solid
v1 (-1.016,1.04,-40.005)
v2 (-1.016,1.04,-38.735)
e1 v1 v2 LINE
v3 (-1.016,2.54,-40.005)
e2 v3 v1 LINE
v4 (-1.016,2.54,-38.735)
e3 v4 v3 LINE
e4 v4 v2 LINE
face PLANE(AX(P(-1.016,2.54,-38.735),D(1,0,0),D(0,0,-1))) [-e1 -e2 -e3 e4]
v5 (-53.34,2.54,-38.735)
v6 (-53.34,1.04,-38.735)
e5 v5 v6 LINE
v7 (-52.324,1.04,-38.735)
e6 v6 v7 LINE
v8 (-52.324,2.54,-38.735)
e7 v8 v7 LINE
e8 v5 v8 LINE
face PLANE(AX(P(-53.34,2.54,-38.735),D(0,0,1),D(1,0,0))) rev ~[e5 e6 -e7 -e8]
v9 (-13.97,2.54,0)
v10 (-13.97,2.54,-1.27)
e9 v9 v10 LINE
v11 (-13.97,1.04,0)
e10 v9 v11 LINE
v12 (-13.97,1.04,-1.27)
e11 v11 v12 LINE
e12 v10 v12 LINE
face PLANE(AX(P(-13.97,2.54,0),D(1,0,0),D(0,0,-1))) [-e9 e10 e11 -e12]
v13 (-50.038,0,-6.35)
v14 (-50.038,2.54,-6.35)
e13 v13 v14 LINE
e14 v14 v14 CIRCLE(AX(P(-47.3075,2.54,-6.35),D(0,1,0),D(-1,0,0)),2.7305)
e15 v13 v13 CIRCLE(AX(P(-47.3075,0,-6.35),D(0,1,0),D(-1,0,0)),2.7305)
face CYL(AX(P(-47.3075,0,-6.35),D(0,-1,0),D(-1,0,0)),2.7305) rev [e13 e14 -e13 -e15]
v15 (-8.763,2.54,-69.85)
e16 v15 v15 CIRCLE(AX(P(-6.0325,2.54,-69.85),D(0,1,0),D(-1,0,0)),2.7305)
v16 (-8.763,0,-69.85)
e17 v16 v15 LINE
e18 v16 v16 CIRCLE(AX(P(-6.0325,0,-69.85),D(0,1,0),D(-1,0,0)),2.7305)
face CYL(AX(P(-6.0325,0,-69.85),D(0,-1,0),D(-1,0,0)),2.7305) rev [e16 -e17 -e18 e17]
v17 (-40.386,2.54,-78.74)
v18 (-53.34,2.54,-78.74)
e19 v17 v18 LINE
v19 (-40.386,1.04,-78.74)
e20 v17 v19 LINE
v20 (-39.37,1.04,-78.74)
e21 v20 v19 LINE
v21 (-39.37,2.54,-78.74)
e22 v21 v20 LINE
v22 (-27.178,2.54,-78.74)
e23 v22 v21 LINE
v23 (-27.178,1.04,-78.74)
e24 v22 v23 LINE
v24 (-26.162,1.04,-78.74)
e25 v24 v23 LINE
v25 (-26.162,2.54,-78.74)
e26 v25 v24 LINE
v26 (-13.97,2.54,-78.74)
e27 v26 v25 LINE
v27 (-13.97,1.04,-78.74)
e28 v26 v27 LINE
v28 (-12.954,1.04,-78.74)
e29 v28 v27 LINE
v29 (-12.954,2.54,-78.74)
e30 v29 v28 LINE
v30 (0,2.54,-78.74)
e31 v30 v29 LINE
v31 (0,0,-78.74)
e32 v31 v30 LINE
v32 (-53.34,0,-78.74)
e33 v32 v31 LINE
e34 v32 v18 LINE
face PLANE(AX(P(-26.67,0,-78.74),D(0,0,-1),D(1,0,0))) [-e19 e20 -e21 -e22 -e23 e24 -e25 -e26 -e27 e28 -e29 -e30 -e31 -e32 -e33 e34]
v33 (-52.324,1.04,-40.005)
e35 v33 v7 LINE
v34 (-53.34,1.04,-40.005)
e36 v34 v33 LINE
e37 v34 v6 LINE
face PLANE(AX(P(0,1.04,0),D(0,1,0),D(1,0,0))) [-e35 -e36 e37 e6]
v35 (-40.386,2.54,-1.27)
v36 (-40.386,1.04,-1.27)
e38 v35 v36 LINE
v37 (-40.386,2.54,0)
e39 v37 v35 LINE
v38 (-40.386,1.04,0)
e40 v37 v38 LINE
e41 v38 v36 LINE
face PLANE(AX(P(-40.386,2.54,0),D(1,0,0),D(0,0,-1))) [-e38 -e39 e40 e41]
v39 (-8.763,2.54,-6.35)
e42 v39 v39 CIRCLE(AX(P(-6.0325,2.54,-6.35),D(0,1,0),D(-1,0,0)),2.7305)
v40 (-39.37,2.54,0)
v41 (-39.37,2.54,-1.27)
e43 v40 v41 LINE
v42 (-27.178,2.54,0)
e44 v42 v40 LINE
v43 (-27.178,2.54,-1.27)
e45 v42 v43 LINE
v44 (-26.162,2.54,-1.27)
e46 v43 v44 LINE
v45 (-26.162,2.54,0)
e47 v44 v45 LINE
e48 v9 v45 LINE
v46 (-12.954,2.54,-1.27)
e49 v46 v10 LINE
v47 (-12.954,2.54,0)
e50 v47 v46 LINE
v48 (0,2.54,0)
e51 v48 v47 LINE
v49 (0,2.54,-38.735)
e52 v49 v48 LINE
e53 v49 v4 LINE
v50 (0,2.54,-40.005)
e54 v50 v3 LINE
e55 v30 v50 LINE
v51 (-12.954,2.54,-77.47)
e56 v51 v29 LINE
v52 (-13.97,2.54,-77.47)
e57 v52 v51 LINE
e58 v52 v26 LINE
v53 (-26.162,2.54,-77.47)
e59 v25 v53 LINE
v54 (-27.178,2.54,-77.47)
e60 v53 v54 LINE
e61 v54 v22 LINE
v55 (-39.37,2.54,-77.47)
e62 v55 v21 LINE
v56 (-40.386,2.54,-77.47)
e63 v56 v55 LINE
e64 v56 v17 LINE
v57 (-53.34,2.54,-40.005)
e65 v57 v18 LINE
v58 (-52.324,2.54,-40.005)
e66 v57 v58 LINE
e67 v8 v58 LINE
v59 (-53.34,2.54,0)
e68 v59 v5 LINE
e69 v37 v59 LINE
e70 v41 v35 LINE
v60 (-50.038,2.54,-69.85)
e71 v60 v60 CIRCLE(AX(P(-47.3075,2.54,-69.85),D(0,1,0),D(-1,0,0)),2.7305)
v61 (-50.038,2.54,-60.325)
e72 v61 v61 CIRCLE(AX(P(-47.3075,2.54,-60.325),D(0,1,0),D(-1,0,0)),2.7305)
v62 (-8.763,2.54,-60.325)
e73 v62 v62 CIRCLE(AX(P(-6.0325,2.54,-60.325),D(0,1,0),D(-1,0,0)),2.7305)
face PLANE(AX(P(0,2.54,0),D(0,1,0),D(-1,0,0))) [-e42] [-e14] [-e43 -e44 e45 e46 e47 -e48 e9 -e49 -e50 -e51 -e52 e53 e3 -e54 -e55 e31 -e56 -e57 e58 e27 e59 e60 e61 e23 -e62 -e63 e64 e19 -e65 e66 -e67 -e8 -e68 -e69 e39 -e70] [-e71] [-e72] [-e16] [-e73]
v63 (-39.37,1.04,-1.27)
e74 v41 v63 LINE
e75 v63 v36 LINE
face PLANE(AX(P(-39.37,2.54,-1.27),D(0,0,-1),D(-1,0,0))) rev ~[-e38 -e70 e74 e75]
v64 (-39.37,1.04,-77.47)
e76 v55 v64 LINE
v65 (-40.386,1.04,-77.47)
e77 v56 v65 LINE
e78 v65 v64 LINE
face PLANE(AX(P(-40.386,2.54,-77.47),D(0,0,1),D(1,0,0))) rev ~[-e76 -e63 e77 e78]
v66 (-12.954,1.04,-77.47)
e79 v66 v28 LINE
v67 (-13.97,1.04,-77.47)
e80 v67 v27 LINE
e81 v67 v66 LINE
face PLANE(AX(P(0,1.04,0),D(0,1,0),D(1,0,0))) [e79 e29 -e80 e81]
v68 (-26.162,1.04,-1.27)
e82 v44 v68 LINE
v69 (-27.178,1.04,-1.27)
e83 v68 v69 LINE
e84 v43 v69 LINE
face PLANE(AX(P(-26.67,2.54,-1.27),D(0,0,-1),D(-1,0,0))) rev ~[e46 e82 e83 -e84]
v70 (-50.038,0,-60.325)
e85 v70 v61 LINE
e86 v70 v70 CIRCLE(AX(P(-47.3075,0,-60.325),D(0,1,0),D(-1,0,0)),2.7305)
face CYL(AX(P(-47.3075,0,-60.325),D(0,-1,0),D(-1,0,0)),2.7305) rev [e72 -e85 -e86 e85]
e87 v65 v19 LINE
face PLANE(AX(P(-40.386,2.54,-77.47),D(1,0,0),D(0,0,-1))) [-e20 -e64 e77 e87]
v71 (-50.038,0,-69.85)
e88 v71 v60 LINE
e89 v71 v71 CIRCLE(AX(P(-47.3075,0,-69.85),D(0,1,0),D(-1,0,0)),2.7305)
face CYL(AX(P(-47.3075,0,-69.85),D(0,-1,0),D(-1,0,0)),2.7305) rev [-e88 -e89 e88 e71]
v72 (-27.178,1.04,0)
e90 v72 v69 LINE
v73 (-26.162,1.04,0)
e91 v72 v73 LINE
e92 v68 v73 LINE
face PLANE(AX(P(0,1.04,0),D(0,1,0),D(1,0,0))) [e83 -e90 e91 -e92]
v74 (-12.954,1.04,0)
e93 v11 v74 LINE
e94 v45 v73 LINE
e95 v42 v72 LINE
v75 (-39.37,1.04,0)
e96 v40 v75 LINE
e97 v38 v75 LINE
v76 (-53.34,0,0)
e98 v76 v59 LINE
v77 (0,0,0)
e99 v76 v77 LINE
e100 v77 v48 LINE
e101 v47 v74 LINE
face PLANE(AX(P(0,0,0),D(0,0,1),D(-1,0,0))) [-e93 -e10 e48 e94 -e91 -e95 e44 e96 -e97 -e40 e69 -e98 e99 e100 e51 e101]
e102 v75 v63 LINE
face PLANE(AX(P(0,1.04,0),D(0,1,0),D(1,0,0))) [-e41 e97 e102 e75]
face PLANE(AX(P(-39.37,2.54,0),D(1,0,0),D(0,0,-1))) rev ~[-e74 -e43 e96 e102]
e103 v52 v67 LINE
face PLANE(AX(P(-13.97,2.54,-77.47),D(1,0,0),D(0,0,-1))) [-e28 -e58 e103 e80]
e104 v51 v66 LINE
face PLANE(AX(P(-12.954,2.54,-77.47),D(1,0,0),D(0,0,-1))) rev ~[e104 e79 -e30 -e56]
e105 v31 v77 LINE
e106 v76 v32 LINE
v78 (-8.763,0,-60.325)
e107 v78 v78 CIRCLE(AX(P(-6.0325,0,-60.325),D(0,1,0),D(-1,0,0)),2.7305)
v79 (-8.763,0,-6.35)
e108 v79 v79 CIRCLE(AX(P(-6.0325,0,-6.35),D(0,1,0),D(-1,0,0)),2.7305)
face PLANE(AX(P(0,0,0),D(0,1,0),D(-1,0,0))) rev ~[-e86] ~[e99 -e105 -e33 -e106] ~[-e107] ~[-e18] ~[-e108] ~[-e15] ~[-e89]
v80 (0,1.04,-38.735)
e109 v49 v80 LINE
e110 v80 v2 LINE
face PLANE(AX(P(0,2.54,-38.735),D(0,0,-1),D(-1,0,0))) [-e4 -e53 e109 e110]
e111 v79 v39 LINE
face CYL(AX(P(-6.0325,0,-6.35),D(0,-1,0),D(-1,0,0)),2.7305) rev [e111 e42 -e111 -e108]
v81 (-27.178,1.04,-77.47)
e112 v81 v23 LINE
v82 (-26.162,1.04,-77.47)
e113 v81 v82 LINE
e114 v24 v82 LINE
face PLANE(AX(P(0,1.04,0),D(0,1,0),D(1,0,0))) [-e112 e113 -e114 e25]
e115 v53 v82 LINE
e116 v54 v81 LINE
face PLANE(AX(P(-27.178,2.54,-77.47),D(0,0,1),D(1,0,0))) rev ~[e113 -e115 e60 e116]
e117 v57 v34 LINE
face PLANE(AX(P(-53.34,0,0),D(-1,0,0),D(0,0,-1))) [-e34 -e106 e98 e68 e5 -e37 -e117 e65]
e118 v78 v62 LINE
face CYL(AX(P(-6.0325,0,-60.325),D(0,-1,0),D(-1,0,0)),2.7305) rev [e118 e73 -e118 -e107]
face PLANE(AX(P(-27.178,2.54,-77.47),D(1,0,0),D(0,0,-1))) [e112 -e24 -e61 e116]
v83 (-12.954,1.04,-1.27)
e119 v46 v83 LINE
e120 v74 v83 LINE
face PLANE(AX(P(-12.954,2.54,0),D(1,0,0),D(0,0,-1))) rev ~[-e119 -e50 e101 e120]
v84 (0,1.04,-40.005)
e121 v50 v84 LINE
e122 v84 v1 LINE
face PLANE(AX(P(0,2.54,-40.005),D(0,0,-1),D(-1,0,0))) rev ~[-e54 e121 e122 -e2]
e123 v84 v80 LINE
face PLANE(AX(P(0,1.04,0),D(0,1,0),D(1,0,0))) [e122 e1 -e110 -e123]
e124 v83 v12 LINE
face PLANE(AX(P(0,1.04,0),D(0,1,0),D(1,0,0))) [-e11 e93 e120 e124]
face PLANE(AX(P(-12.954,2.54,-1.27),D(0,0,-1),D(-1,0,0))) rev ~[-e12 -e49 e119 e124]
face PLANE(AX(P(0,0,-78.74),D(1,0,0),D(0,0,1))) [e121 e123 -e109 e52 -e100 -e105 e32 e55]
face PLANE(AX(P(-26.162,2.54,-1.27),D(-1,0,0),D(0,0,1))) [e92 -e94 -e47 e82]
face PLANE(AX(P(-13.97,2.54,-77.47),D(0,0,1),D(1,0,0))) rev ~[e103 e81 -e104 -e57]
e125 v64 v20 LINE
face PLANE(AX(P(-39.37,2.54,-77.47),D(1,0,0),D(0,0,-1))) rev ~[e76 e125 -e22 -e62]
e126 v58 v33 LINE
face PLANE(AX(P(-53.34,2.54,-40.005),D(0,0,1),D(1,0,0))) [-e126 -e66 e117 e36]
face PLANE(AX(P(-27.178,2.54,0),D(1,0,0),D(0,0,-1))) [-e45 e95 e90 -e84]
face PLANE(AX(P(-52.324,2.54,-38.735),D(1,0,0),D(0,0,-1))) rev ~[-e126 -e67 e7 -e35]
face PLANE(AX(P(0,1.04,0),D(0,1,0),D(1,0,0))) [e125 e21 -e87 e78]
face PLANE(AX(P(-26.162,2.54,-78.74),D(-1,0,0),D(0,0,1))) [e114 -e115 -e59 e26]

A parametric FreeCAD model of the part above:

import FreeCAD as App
import Part
import Sketcher

V = App.Vector
Q = App.Units.Quantity


def add_polygon(sketch, points):
    """Adds a closed chain of lines whose ends are joined by coincident constraints."""
    first, n = sketch.GeometryCount, len(points)
    for a, b in zip(points, points[1:] + points[:1]):
        sketch.addGeometry(Part.LineSegment(App.Vector(*a, 0), App.Vector(*b, 0)), False)
    for i in range(n):
        sketch.addConstraint(Sketcher.Constraint("Coincident", first + i, 2, first + (i + 1) % n, 1))

doc = App.newDocument("Part")
body = doc.addObject("PartDesign::Body", "Body")

# Sketch on XZ plane
sketch1 = doc.addObject("Sketcher::SketchObject", "Sketch")
body.addObject(sketch1)
sketch1.AttachmentSupport = (doc.XZ_Plane, [""])
sketch1.MapMode = "FlatFace"
add_polygon(sketch1, [(0, 0), (0, -78.7), (-53.3, -78.7), (-53.3, 0)])  # lines 0-3
sketch1.addGeometry(Part.Circle(V(-6, -69.8, 0), V(0, 0, 1), 2.7), False)  # 4
sketch1.addGeometry(Part.Circle(V(-6, -60.3, 0), V(0, 0, 1), 2.7), False)  # 5
sketch1.addGeometry(Part.Circle(V(-6, -6.3, 0), V(0, 0, 1), 2.7), False)  # 6
sketch1.addGeometry(Part.Circle(V(-47.3, -6.3, 0), V(0, 0, 1), 2.7), False)  # 7
sketch1.addGeometry(Part.Circle(V(-47.3, -69.8, 0), V(0, 0, 1), 2.7), False)  # 8
sketch1.addGeometry(Part.Circle(V(-47.3, -60.3, 0), V(0, 0, 1), 2.7), False)  # 9
sketch1.addConstraint([
    Sketcher.Constraint("Vertical", 0),
    Sketcher.Constraint("Horizontal", 1),
    Sketcher.Constraint("Vertical", 2),
    Sketcher.Constraint("Horizontal", 3),
    Sketcher.Constraint("Coincident", 3, 2, -1, 1),
    Sketcher.Constraint("Equal", 4, 5),
    Sketcher.Constraint("Equal", 5, 6),
    Sketcher.Constraint("Equal", 6, 7),
    Sketcher.Constraint("Equal", 7, 8),
    Sketcher.Constraint("Equal", 8, 9),
    Sketcher.Constraint("Horizontal", 6, 3, 7, 3),
    Sketcher.Constraint("Horizontal", 4, 3, 8, 3),
    Sketcher.Constraint("Horizontal", 5, 3, 9, 3),
    Sketcher.Constraint("Vertical", 4, 3, 5, 3),
    Sketcher.Constraint("Vertical", 5, 3, 6, 3),
    Sketcher.Constraint("Vertical", 7, 3, 8, 3),
    Sketcher.Constraint("Vertical", 8, 3, 9, 3),
    Sketcher.Constraint("Diameter", 4, Q("0.215 in")),
    Sketcher.Constraint("DistanceX", 1, 2, 1, 1, Q("2.1 in")),
    Sketcher.Constraint("DistanceY", 0, 2, 0, 1, Q("3.1 in")),
    Sketcher.Constraint("DistanceY", 4, 3, 6, 3, Q("2.5 in")),
    Sketcher.Constraint("DistanceY", 6, 3, -1, 1, Q("0.25 in")),
    Sketcher.Constraint("DistanceY", 5, 3, 6, 3, Q("2.125 in")),
    Sketcher.Constraint("DistanceX", 7, 3, 6, 3, Q("1.625 in")),
    Sketcher.Constraint("DistanceX", 4, 3, -1, 1, Q("0.2375 in")),
])
pad1 = doc.addObject("PartDesign::Pad", "Pad")
body.addObject(pad1)
pad1.Profile = sketch1
pad1.Length = Q("0.1 in")
pad1.Reversed = True

# Sketch on XZ plane
sketch2 = doc.addObject("Sketcher::SketchObject", "Sketch001")
body.addObject(sketch2)
sketch2.AttachmentSupport = (doc.XZ_Plane, [""])
sketch2.MapMode = "FlatFace"
sketch2.AttachmentOffset = App.Placement(V(0, 0, -0.1 * 25.4), App.Rotation())
add_polygon(sketch2, [(-53.3, -38.7), (-52.3, -38.7), (-52.3, -40), (-53.3, -40)])  # lines 0-3
add_polygon(sketch2, [(-40.4, -1.3), (-40.4, 0), (-39.4, 0), (-39.4, -1.3)])  # lines 4-7
add_polygon(sketch2, [(-27.2, -1.3), (-27.2, 0), (-26.2, 0), (-26.2, -1.3)])  # lines 8-11
add_polygon(sketch2, [(-40.4, -78.7), (-40.4, -77.5), (-39.4, -77.5), (-39.4, -78.7)])  # lines 12-15
add_polygon(sketch2, [(-14, -1.3), (-14, 0), (-13, 0), (-13, -1.3)])  # lines 16-19
add_polygon(sketch2, [(-27.2, -78.7), (-27.2, -77.5), (-26.2, -77.5), (-26.2, -78.7)])  # lines 20-23
add_polygon(sketch2, [(-1, -38.7), (0, -38.7), (0, -40), (-1, -40)])  # lines 24-27
add_polygon(sketch2, [(-14, -78.7), (-14, -77.5), (-13, -77.5), (-13, -78.7)])  # lines 28-31
sketch2.addConstraint([
    Sketcher.Constraint("Horizontal", 0),
    Sketcher.Constraint("Vertical", 1),
    Sketcher.Constraint("Horizontal", 2),
    Sketcher.Constraint("Vertical", 3),
    Sketcher.Constraint("Vertical", 4),
    Sketcher.Constraint("Horizontal", 5),
    Sketcher.Constraint("Vertical", 6),
    Sketcher.Constraint("Horizontal", 7),
    Sketcher.Constraint("Vertical", 8),
    Sketcher.Constraint("Horizontal", 9),
    Sketcher.Constraint("Vertical", 10),
    Sketcher.Constraint("Horizontal", 11),
    Sketcher.Constraint("Vertical", 12),
    Sketcher.Constraint("Horizontal", 13),
    Sketcher.Constraint("Vertical", 14),
    Sketcher.Constraint("Horizontal", 15),
    Sketcher.Constraint("Vertical", 16),
    Sketcher.Constraint("Horizontal", 17),
    Sketcher.Constraint("Vertical", 18),
    Sketcher.Constraint("Horizontal", 19),
    Sketcher.Constraint("Vertical", 20),
    Sketcher.Constraint("Horizontal", 21),
    Sketcher.Constraint("Vertical", 22),
    Sketcher.Constraint("Horizontal", 23),
    Sketcher.Constraint("Horizontal", 24),
    Sketcher.Constraint("Vertical", 25),
    Sketcher.Constraint("Horizontal", 26),
    Sketcher.Constraint("Vertical", 27),
    Sketcher.Constraint("Vertical", 28),
    Sketcher.Constraint("Horizontal", 29),
    Sketcher.Constraint("Vertical", 30),
    Sketcher.Constraint("Horizontal", 31),
    Sketcher.Constraint("PointOnObject", 4, 2, -1),
    Sketcher.Constraint("PointOnObject", 8, 2, -1),
    Sketcher.Constraint("PointOnObject", 16, 2, -1),
    Sketcher.Constraint("PointOnObject", 24, 2, -2),
    Sketcher.Constraint("Horizontal", 7, 2, 10, 2),
    Sketcher.Constraint("Horizontal", 11, 2, 18, 2),
    Sketcher.Constraint("Horizontal", 13, 2, 20, 2),
    Sketcher.Constraint("Horizontal", 15, 2, 22, 2),
    Sketcher.Constraint("Horizontal", 3, 2, 24, 2),
    Sketcher.Constraint("Horizontal", 2, 2, 25, 2),
    Sketcher.Constraint("Horizontal", 21, 2, 28, 2),
    Sketcher.Constraint("Horizontal", 23, 2, 30, 2),
    Sketcher.Constraint("Vertical", 7, 2, 12, 2),
    Sketcher.Constraint("Vertical", 6, 2, 13, 2),
    Sketcher.Constraint("Vertical", 11, 2, 20, 2),
    Sketcher.Constraint("Vertical", 10, 2, 21, 2),
    Sketcher.Constraint("Vertical", 19, 2, 28, 2),
    Sketcher.Constraint("Vertical", 18, 2, 29, 2),
    Sketcher.Constraint("Equal", 2, 5),
    Sketcher.Constraint("Equal", 7, 9),
    Sketcher.Constraint("Equal", 15, 17),
    Sketcher.Constraint("Equal", 23, 24),
    Sketcher.Constraint("Equal", 3, 4),
    Sketcher.Constraint("Equal", 10, 12),
    Sketcher.Constraint("DistanceX", 0, 1, 0, 2, Q("0.04 in")),
    Sketcher.Constraint("DistanceY", 1, 2, 1, 1, Q("0.05 in")),
    Sketcher.Constraint("DistanceY", 12, 2, 7, 2, Q("3 in")),
    Sketcher.Constraint("DistanceX", 5, 2, 16, 2, Q("1 in")),
    Sketcher.Constraint("DistanceX", 2, 2, -1, 1, Q("2.1 in")),
    Sketcher.Constraint("DistanceX", 4, 2, -1, 1, Q("1.59 in")),
    Sketcher.Constraint("DistanceX", 8, 2, -1, 1, Q("1.07 in")),
    Sketcher.Constraint("DistanceY", 0, 2, -1, 1, Q("1.525 in")),
])
pocket1 = doc.addObject("PartDesign::Pocket", "Pocket")
body.addObject(pocket1)
pocket1.Profile = sketch2
pocket1.Length = 1.5
pocket1.Reversed = True

doc.recompute()
